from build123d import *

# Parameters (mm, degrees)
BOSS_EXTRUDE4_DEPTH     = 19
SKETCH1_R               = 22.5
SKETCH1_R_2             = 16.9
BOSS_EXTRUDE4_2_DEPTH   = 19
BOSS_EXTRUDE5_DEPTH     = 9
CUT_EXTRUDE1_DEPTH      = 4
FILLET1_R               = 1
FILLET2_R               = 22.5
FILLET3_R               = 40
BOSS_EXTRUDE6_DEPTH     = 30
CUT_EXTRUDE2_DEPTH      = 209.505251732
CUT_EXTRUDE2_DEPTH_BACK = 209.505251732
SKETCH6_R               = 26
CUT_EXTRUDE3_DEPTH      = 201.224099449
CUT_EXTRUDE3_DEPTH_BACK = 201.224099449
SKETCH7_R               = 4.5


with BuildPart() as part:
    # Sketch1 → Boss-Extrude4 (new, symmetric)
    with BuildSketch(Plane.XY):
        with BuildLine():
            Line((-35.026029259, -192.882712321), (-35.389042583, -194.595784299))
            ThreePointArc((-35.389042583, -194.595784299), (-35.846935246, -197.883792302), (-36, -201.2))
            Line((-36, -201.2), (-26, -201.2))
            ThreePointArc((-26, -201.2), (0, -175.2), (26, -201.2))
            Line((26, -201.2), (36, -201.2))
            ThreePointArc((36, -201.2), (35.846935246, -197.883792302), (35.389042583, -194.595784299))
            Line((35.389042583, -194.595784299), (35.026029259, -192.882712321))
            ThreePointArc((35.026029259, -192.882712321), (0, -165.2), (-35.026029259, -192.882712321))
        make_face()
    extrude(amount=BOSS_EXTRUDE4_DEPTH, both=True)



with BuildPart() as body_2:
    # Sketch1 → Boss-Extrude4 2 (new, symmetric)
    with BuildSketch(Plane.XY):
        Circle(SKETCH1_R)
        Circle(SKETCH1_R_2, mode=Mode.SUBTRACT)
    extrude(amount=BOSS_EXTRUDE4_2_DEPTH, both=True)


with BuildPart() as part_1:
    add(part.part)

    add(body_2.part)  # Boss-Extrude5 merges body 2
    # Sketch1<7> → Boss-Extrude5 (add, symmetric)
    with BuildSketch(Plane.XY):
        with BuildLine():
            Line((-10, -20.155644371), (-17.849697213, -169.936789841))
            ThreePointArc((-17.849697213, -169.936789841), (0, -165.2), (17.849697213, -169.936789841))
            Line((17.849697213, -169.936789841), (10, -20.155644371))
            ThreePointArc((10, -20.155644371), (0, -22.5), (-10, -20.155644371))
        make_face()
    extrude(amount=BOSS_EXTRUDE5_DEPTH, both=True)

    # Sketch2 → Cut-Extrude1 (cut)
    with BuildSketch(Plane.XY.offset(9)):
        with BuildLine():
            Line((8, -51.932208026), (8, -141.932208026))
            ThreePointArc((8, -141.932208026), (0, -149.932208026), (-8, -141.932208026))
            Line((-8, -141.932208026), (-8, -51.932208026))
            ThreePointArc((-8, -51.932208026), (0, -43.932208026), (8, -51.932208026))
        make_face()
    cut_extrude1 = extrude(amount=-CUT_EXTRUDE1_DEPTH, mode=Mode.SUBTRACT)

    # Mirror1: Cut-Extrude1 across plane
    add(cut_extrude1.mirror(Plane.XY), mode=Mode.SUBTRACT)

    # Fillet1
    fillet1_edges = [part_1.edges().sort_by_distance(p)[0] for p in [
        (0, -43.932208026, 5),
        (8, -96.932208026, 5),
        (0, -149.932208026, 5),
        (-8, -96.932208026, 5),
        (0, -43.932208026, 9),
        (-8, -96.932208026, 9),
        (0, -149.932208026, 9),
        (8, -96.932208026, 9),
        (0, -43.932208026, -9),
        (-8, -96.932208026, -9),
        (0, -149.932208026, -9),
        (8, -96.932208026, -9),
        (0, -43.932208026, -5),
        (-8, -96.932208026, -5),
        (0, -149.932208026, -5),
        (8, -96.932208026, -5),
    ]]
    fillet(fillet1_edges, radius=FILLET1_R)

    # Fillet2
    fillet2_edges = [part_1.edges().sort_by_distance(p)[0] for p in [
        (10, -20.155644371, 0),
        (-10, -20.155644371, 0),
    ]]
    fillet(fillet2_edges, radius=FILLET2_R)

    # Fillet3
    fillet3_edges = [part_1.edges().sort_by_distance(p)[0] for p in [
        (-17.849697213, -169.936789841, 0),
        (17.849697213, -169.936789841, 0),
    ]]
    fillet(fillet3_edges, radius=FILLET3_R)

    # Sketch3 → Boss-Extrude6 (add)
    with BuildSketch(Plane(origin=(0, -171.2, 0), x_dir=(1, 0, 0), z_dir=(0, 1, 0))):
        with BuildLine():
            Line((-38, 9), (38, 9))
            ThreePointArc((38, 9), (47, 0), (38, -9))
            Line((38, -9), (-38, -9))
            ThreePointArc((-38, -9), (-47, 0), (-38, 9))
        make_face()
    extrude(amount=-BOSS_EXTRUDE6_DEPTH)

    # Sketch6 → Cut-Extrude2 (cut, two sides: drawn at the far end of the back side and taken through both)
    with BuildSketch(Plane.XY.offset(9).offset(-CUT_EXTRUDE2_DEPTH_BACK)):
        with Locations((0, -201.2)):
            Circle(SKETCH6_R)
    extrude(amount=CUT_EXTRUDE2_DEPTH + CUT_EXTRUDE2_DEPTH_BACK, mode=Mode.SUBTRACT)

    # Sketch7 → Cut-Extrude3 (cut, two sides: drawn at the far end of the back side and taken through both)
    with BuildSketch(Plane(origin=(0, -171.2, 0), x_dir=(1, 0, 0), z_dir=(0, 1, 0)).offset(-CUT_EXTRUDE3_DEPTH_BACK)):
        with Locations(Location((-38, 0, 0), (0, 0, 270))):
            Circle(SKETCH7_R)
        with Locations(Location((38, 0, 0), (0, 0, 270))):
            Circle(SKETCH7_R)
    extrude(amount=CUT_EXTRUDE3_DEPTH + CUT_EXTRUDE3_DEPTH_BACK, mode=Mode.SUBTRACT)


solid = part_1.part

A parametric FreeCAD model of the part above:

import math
import FreeCAD as App
import Part
import Sketcher
from FreeCAD import Vector
Q = App.Units.Quantity


def edges_at(feature, points):
    """Names of the edges that pass closest to the given points."""
    edges = feature.Shape.Edges
    near = lambda p: min(range(len(edges)), key=lambda i: edges[i].distToShape(Part.Vertex(*p))[0])
    return sorted({f"Edge{near(p) + 1}" for p in points})

doc = App.newDocument("Part")
body = doc.addObject("PartDesign::Body", "Body")

# Sketch on XY plane
sketch1 = body.newObject("Sketcher::SketchObject", "Sketch")
sketch1.AttachmentSupport = (doc.getObject("XY_Plane"), [""])
sketch1.MapMode = "FlatFace"
sketch1.addGeometry(Part.LineSegment(Vector(-35, -192.9, 0), Vector(-35.4, -194.6, 0)), False)
sketch1.addGeometry(Part.ArcOfCircle(Part.Circle(Vector(0, -201.2, 0), Vector(0, 0, 1), 36), math.radians(169.43), math.radians(180)), False)
sketch1.addGeometry(Part.LineSegment(Vector(-36, -201.2, 0), Vector(-26, -201.2, 0)), False)
sketch1.addGeometry(Part.ArcOfCircle(Part.Circle(Vector(0, -201.2, 0), Vector(0, 0, 1), 26), math.radians(0), math.radians(180)), False)
sketch1.addGeometry(Part.LineSegment(Vector(26, -201.2, 0), Vector(36, -201.2, 0)), False)
sketch1.addGeometry(Part.ArcOfCircle(Part.Circle(Vector(0, -201.2, 0), Vector(0, 0, 1), 36), math.radians(0), math.radians(10.57)), False)
sketch1.addGeometry(Part.LineSegment(Vector(35.4, -194.6, 0), Vector(35, -192.9, 0)), False)
sketch1.addGeometry(Part.ArcOfCircle(Part.Circle(Vector(0, -201.2, 0), Vector(0, 0, 1), 36), math.radians(13), math.radians(167)), False)
sketch1.addConstraint(Sketcher.Constraint("Coincident", 0, 2, 1, 1))
sketch1.addConstraint(Sketcher.Constraint("Coincident", 1, 2, 2, 1))
sketch1.addConstraint(Sketcher.Constraint("Coincident", 2, 2, 3, 2))
sketch1.addConstraint(Sketcher.Constraint("Coincident", 3, 1, 4, 1))
sketch1.addConstraint(Sketcher.Constraint("Coincident", 4, 2, 5, 1))
sketch1.addConstraint(Sketcher.Constraint("Coincident", 5, 2, 6, 1))
sketch1.addConstraint(Sketcher.Constraint("Coincident", 6, 2, 7, 1))
sketch1.addConstraint(Sketcher.Constraint("Coincident", 7, 2, 0, 1))
sketch1.addConstraint(Sketcher.Constraint("Horizontal", 2))
sketch1.addConstraint(Sketcher.Constraint("Horizontal", 4))
sketch1.addConstraint(Sketcher.Constraint("Coincident", 3, 3, 1, 3))
sketch1.addConstraint(Sketcher.Constraint("Coincident", 5, 3, 1, 3))
sketch1.addConstraint(Sketcher.Constraint("Coincident", 7, 3, 1, 3))
sketch1.addConstraint(Sketcher.Constraint("Equal", 1, 5))
sketch1.addConstraint(Sketcher.Constraint("Equal", 5, 7))
sketch1.addConstraint(Sketcher.Constraint("Symmetric", 2, 2, 3, 1, -2))
sketch1.addConstraint(Sketcher.Constraint("Horizontal", 7, 3, 1, 2))
sketch1.addConstraint(Sketcher.Constraint("Horizontal", 0, 2, 5, 2))
sketch1.addConstraint(Sketcher.Constraint("Horizontal", 6, 2, 7, 2))
sketch1.addConstraint(Sketcher.Constraint("Radius", 1, 36.0))
sketch1.addConstraint(Sketcher.Constraint("Radius", 3, 26.0))
sketch1.addConstraint(Sketcher.Constraint("DistanceY", 1, 3, -1, 1, 201.2))
sketch1.addConstraint(Sketcher.Constraint("DistanceX", -1, 1, 6, 2, 35.026029))
sketch1.addConstraint(Sketcher.Constraint("DistanceY", 5, 2, 6, 2, 1.713072))
pad1 = body.newObject("PartDesign::Pad", "Pad")
pad1.Profile = sketch1
pad1.Length = 38
pad1.Midplane = True
body2 = doc.addObject("PartDesign::Body", "Body001")

# Sketch on XY plane
sketch2 = body2.newObject("Sketcher::SketchObject", "Sketch001")
sketch2.AttachmentSupport = (doc.getObject("XY_Plane001"), [""])
sketch2.MapMode = "FlatFace"
sketch2.addGeometry(Part.Circle(Vector(0, 0, 0), Vector(0, 0, 1), 22), False)
sketch2.addGeometry(Part.Circle(Vector(0, 0, 0), Vector(0, 0, 1), 17), False)
sketch2.addConstraint(Sketcher.Constraint("Coincident", 0, 3, -1, 1))
sketch2.addConstraint(Sketcher.Constraint("Coincident", 1, 3, -1, 1))
sketch2.addConstraint(Sketcher.Constraint("Diameter", 0, 45.0))
sketch2.addConstraint(Sketcher.Constraint("Diameter", 1, 33.8))
pad2 = body2.newObject("PartDesign::Pad", "Pad001")
pad2.Profile = sketch2
pad2.Length = 38
pad2.Midplane = True
body.AllowCompound = True
doc.recompute()

boolean = body.newObject("PartDesign::Boolean", "Boolean")
boolean.Type = "Fuse"
boolean.addObjects([body2])

# Sketch on XY plane
sketch3 = body.newObject("Sketcher::SketchObject", "Sketch002")
sketch3.AttachmentSupport = (doc.getObject("XY_Plane"), [""])
sketch3.MapMode = "FlatFace"
sketch3.addGeometry(Part.LineSegment(Vector(-10, -20, 0), Vector(-18, -170, 0)), False)
sketch3.addGeometry(Part.ArcOfCircle(Part.Circle(Vector(0, -201, 0), Vector(0, 0, 1), 36), math.radians(60), math.radians(120)), False)
sketch3.addGeometry(Part.LineSegment(Vector(18, -170, 0), Vector(10, -20, 0)), False)
sketch3.addGeometry(Part.ArcOfCircle(Part.Circle(Vector(0, 0, 0), Vector(0, 0, 1), 23), math.radians(-116), math.radians(-64)), False)
sketch3.addConstraint(Sketcher.Constraint("Coincident", 0, 2, 1, 2))
sketch3.addConstraint(Sketcher.Constraint("Coincident", 1, 1, 2, 1))
sketch3.addConstraint(Sketcher.Constraint("Coincident", 2, 2, 3, 2))
sketch3.addConstraint(Sketcher.Constraint("Coincident", 3, 1, 0, 1))
sketch3.addConstraint(Sketcher.Constraint("Coincident", 3, 3, -1, 1))
sketch3.addConstraint(Sketcher.Constraint("Symmetric", 0, 2, 1, 1, -2))
sketch3.addConstraint(Sketcher.Constraint("Horizontal", 2, 2, 3, 1))
sketch3.addConstraint(Sketcher.Constraint("Radius", 1, 36.0))
sketch3.addConstraint(Sketcher.Constraint("Radius", 3, 22.5))
sketch3.addConstraint(Sketcher.Constraint("Angle", 0, Q("-93 deg")))
sketch3.addConstraint(Sketcher.Constraint("DistanceX", -1, 1, 2, 2, 10.0))
sketch3.addConstraint(Sketcher.Constraint("DistanceY", 1, 3, -1, 1, 201.2))
pad3 = body.newObject("PartDesign::Pad", "Pad002")
pad3.Profile = sketch3
pad3.Length = 18
pad3.Midplane = True

# Sketch on XY plane
sketch4 = body.newObject("Sketcher::SketchObject", "Sketch003")
sketch4.AttachmentSupport = (doc.getObject("XY_Plane"), [""])
sketch4.MapMode = "FlatFace"
sketch4.AttachmentOffset = App.Placement(Vector(0, 0, 9), App.Rotation())
sketch4.addGeometry(Part.LineSegment(Vector(8, -142, 0), Vector(8, -52, 0)), False)
sketch4.addGeometry(Part.ArcOfCircle(Part.Circle(Vector(0, -52, 0), Vector(0, 0, 1), 8), math.radians(0), math.radians(180)), False)
sketch4.addGeometry(Part.LineSegment(Vector(-8, -52, 0), Vector(-8, -142, 0)), False)
sketch4.addGeometry(Part.ArcOfCircle(Part.Circle(Vector(0, -142, 0), Vector(0, 0, 1), 8), math.radians(180), math.radians(360)), False)
sketch4.addConstraint(Sketcher.Constraint("Tangent", 0, 2, 1, 1))
sketch4.addConstraint(Sketcher.Constraint("Tangent", 1, 2, 2, 1))
sketch4.addConstraint(Sketcher.Constraint("Tangent", 2, 2, 3, 1))
sketch4.addConstraint(Sketcher.Constraint("Tangent", 3, 2, 0, 1))
sketch4.addConstraint(Sketcher.Constraint("Vertical", 0))
sketch4.addConstraint(Sketcher.Constraint("Vertical", 2))
sketch4.addConstraint(Sketcher.Constraint("PointOnObject", 1, 3, -2))
sketch4.addConstraint(Sketcher.Constraint("Radius", 1, 8.0))
sketch4.addConstraint(Sketcher.Constraint("DistanceY", 0, 1, 0, 2, 90.0))
sketch4.addConstraint(Sketcher.Constraint("DistanceY", 1, 3, -1, 1, 51.932208))
pocket1 = body.newObject("PartDesign::Pocket", "Pocket")
pocket1.Profile = sketch4
pocket1.Length = 4
doc.recompute()

mirrored = body.newObject("PartDesign::Mirrored", "Mirrored")
mirrored.Originals = [pocket1]
mirrored.MirrorPlane = (doc.getObject("XY_Plane"), [""])
body.Tip = mirrored
doc.recompute()

fillet = body.newObject("PartDesign::Fillet", "Fillet")
fillet.Base = (mirrored, edges_at(mirrored, [
    (0, -43.932, 5),
    (8, -96.932, 5),
    (0, -149.932, 5),
    (-8, -96.932, 5),
    (0, -43.932, 9),
    (-8, -96.932, 9),
    (0, -149.932, 9),
    (8, -96.932, 9),
    (0, -43.932, -9),
    (-8, -96.932, -9),
    (0, -149.932, -9),
    (8, -96.932, -9),
    (0, -43.932, -5),
    (-8, -96.932, -5),
    (0, -149.932, -5),
    (8, -96.932, -5),
]))
fillet.Radius = 1
doc.recompute()

fillet2 = body.newObject("PartDesign::Fillet", "Fillet001")
fillet2.Base = (fillet, edges_at(fillet, [(10, -20.156, 0), (-10, -20.156, 0)]))
fillet2.Radius = 22.5
doc.recompute()

fillet3 = body.newObject("PartDesign::Fillet", "Fillet002")
fillet3.Base = (fillet2, edges_at(fillet2, [(-17.85, -169.937, 0), (17.85, -169.937, 0)]))
fillet3.Radius = 40

# Sketch on XZ plane
sketch5 = body.newObject("Sketcher::SketchObject", "Sketch004")
sketch5.AttachmentSupport = (doc.getObject("XZ_Plane"), [""])
sketch5.MapMode = "FlatFace"
sketch5.AttachmentOffset = App.Placement(Vector(0, 0, 171.2), App.Rotation())
sketch5.addGeometry(Part.LineSegment(Vector(38, -9, 0), Vector(-38, -9, 0)), False)
sketch5.addGeometry(Part.ArcOfCircle(Part.Circle(Vector(-38, 0, 0), Vector(0, 0, 1), 9), math.radians(90), math.radians(270)), False)
sketch5.addGeometry(Part.LineSegment(Vector(-38, 9, 0), Vector(38, 9, 0)), False)
sketch5.addGeometry(Part.ArcOfCircle(Part.Circle(Vector(38, 0, 0), Vector(0, 0, 1), 9), math.radians(-90), math.radians(90)), False)
sketch5.addConstraint(Sketcher.Constraint("Tangent", 0, 2, 1, 2))
sketch5.addConstraint(Sketcher.Constraint("Tangent", 1, 1, 2, 1))
sketch5.addConstraint(Sketcher.Constraint("Tangent", 2, 2, 3, 2))
sketch5.addConstraint(Sketcher.Constraint("Tangent", 3, 1, 0, 1))
sketch5.addConstraint(Sketcher.Constraint("Horizontal", 0))
sketch5.addConstraint(Sketcher.Constraint("Horizontal", 2))
sketch5.addConstraint(Sketcher.Constraint("Symmetric", 1, 3, 3, 3, -1, 1))
sketch5.addConstraint(Sketcher.Constraint("Radius", 1, 9.0))
sketch5.addConstraint(Sketcher.Constraint("DistanceX", 0, 2, 0, 1, 76.0))
pad4 = body.newObject("PartDesign::Pad", "Pad003")
pad4.Profile = sketch5
pad4.Length = 30

# Sketch on XY plane
sketch6 = body.newObject("Sketcher::SketchObject", "Sketch005")
sketch6.AttachmentSupport = (doc.getObject("XY_Plane"), [""])
sketch6.MapMode = "FlatFace"
sketch6.AttachmentOffset = App.Placement(Vector(0, 0, 9), App.Rotation())
sketch6.addGeometry(Part.Circle(Vector(0, -201, 0), Vector(0, 0, 1), 26), False)
sketch6.addConstraint(Sketcher.Constraint("PointOnObject", 0, 3, -2))
sketch6.addConstraint(Sketcher.Constraint("Diameter", 0, 52.0))
sketch6.addConstraint(Sketcher.Constraint("DistanceY", 0, 3, -1, 1, 201.2))
pocket2 = body.newObject("PartDesign::Pocket", "Pocket001")
pocket2.Profile = sketch6
pocket2.Type = "ThroughAll"
pocket2.Midplane = True

# Sketch on XZ plane
sketch7 = body.newObject("Sketcher::SketchObject", "Sketch006")
sketch7.AttachmentSupport = (doc.getObject("XZ_Plane"), [""])
sketch7.MapMode = "FlatFace"
sketch7.AttachmentOffset = App.Placement(Vector(0, 0, 171.2), App.Rotation())
sketch7.addGeometry(Part.Circle(Vector(-38, 0, 0), Vector(0, 0, 1), 4.5), False)
sketch7.addGeometry(Part.Circle(Vector(38, 0, 0), Vector(0, 0, 1), 4.5), False)
sketch7.addConstraint(Sketcher.Constraint("Equal", 0, 1))
sketch7.addConstraint(Sketcher.Constraint("Symmetric", 0, 3, 1, 3, -1, 1))
sketch7.addConstraint(Sketcher.Constraint("PointOnObject", 0, 3, -1))
sketch7.addConstraint(Sketcher.Constraint("Diameter", 0, 9.0))
sketch7.addConstraint(Sketcher.Constraint("DistanceX", 0, 3, -1, 1, 38.0))
pocket3 = body.newObject("PartDesign::Pocket", "Pocket002")
pocket3.Profile = sketch7
pocket3.Type = "ThroughAll"
pocket3.Midplane = True

doc.recompute()
